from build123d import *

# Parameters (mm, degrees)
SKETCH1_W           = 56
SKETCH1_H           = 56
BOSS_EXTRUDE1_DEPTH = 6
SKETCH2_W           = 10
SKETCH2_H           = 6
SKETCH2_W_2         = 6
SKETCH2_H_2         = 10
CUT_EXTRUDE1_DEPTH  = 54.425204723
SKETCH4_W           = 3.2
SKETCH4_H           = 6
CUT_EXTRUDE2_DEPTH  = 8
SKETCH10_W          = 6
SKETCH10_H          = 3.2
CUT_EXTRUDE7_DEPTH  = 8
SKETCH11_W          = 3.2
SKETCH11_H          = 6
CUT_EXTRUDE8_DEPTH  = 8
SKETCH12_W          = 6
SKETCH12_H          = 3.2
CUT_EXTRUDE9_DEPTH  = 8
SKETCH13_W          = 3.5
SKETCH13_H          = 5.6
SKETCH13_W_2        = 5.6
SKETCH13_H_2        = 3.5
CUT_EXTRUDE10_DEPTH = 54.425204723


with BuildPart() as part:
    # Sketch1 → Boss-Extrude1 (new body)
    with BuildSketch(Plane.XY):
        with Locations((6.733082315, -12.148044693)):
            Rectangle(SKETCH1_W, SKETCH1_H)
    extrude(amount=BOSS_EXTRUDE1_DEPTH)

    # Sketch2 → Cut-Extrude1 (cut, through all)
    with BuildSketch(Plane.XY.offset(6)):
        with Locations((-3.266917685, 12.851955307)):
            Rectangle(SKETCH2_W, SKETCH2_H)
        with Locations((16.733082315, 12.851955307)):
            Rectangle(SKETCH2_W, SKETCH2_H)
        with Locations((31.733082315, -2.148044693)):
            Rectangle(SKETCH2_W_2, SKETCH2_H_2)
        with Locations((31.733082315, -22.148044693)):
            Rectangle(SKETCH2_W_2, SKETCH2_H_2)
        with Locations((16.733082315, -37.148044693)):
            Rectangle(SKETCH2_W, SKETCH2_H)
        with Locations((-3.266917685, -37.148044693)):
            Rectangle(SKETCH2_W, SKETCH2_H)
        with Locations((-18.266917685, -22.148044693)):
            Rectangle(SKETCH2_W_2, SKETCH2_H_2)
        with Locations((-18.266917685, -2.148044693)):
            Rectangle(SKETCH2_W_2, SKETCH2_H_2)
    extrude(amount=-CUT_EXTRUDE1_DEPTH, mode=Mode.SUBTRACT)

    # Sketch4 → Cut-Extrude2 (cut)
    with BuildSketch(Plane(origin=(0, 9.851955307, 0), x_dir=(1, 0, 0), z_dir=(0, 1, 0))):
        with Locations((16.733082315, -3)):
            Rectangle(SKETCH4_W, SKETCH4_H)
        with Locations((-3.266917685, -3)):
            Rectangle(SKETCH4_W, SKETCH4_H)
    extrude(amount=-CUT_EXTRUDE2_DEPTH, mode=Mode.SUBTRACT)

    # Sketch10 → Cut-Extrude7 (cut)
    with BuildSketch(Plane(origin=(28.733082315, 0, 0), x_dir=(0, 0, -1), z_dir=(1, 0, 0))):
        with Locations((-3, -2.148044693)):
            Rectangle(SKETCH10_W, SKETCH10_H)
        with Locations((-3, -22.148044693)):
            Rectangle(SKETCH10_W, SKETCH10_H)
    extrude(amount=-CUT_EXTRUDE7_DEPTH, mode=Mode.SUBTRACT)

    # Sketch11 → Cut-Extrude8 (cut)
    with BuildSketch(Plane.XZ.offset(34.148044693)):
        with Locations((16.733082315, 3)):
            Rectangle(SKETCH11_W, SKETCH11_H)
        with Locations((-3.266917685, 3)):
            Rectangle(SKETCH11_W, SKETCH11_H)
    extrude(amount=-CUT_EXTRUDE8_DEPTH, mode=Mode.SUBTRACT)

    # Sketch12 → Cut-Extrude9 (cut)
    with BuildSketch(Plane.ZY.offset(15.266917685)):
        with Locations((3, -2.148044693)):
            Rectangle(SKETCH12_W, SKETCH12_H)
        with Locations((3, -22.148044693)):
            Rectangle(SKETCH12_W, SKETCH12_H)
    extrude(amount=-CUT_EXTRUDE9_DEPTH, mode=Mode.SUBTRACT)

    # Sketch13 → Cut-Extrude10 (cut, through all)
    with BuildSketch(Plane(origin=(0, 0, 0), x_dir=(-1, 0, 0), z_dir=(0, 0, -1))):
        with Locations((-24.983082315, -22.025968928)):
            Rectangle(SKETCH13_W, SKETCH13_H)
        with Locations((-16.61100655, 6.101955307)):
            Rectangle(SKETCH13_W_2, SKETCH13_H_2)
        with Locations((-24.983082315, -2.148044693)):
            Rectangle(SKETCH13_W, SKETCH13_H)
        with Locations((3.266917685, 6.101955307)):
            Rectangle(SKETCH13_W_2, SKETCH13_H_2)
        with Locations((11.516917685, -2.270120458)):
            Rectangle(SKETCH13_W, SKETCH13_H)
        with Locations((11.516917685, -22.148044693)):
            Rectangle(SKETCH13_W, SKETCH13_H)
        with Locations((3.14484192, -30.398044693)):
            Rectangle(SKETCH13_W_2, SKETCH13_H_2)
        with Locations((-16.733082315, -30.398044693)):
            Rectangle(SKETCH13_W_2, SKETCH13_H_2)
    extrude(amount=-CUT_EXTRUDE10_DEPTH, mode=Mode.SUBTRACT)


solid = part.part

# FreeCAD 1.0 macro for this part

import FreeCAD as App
import Part
import Sketcher

V = App.Vector


def add_polygon(sketch, points):
    """Adds a closed chain of lines whose ends are joined by coincident constraints."""
    first, n = sketch.GeometryCount, len(points)
    for a, b in zip(points, points[1:] + points[:1]):
        sketch.addGeometry(Part.LineSegment(App.Vector(*a, 0), App.Vector(*b, 0)), False)
    for i in range(n):
        sketch.addConstraint(Sketcher.Constraint("Coincident", first + i, 2, first + (i + 1) % n, 1))

doc = App.newDocument("Part")
body = doc.addObject("PartDesign::Body", "Body")

sketch1 = doc.addObject("Sketcher::SketchObject", "Sketch")
body.addObject(sketch1)
sketch1.AttachmentSupport = (doc.XY_Plane, [""])
sketch1.MapMode = "FlatFace"
add_polygon(sketch1, [(-21, 16), (-21, -40), (35, -40), (35, 16)])
sketch1.addConstraint(Sketcher.Constraint("Vertical", 0))
sketch1.addConstraint(Sketcher.Constraint("Horizontal", 1))
sketch1.addConstraint(Sketcher.Constraint("Vertical", 2))
sketch1.addConstraint(Sketcher.Constraint("Horizontal", 3))
sketch1.addConstraint(Sketcher.Constraint("Equal", 3, 0))
sketch1.addConstraint(Sketcher.Constraint("DistanceX", 1, 1, 1, 2, 56.0))
sketch1.addConstraint(Sketcher.Constraint("DistanceX", 0, 2, -1, 1, 21.266918))
sketch1.addConstraint(Sketcher.Constraint("DistanceY", 0, 2, -1, 1, 40.148045))
pad1 = doc.addObject("PartDesign::Pad", "Pad")
body.addObject(pad1)
pad1.Profile = sketch1
pad1.Length = 6

sketch2 = doc.addObject("Sketcher::SketchObject", "Sketch001")
body.addObject(sketch2)
sketch2.AttachmentSupport = (doc.XY_Plane, [""])
sketch2.MapMode = "FlatFace"
sketch2.AttachmentOffset = App.Placement(V(0, 0, 6), App.Rotation())
add_polygon(sketch2, [(-8, 16), (-8, 10), (2, 10), (2, 16)])
add_polygon(sketch2, [(12, 16), (12, 10), (22, 10), (22, 16)])
add_polygon(sketch2, [(29, 3), (29, -7), (35, -7), (35, 3)])
add_polygon(sketch2, [(29, -17), (29, -27), (35, -27), (35, -17)])
add_polygon(sketch2, [(12, -34), (12, -40), (22, -40), (22, -34)])
add_polygon(sketch2, [(-8, -34), (-8, -40), (2, -40), (2, -34)])
add_polygon(sketch2, [(-21, -17), (-21, -27), (-15, -27), (-15, -17)])
add_polygon(sketch2, [(-21, 3), (-21, -7), (-15, -7), (-15, 3)])
sketch2.addConstraint(Sketcher.Constraint("Vertical", 0))
sketch2.addConstraint(Sketcher.Constraint("Horizontal", 1))
sketch2.addConstraint(Sketcher.Constraint("Vertical", 2))
sketch2.addConstraint(Sketcher.Constraint("Horizontal", 3))
sketch2.addConstraint(Sketcher.Constraint("Vertical", 4))
sketch2.addConstraint(Sketcher.Constraint("Horizontal", 5))
sketch2.addConstraint(Sketcher.Constraint("Vertical", 6))
sketch2.addConstraint(Sketcher.Constraint("Horizontal", 7))
sketch2.addConstraint(Sketcher.Constraint("Vertical", 8))
sketch2.addConstraint(Sketcher.Constraint("Horizontal", 9))
sketch2.addConstraint(Sketcher.Constraint("Vertical", 10))
sketch2.addConstraint(Sketcher.Constraint("Horizontal", 11))
sketch2.addConstraint(Sketcher.Constraint("Vertical", 12))
sketch2.addConstraint(Sketcher.Constraint("Horizontal", 13))
sketch2.addConstraint(Sketcher.Constraint("Vertical", 14))
sketch2.addConstraint(Sketcher.Constraint("Horizontal", 15))
sketch2.addConstraint(Sketcher.Constraint("Vertical", 16))
sketch2.addConstraint(Sketcher.Constraint("Horizontal", 17))
sketch2.addConstraint(Sketcher.Constraint("Vertical", 18))
sketch2.addConstraint(Sketcher.Constraint("Horizontal", 19))
sketch2.addConstraint(Sketcher.Constraint("Vertical", 20))
sketch2.addConstraint(Sketcher.Constraint("Horizontal", 21))
sketch2.addConstraint(Sketcher.Constraint("Vertical", 22))
sketch2.addConstraint(Sketcher.Constraint("Horizontal", 23))
sketch2.addConstraint(Sketcher.Constraint("Vertical", 24))
sketch2.addConstraint(Sketcher.Constraint("Horizontal", 25))
sketch2.addConstraint(Sketcher.Constraint("Vertical", 26))
sketch2.addConstraint(Sketcher.Constraint("Horizontal", 27))
sketch2.addConstraint(Sketcher.Constraint("Vertical", 28))
sketch2.addConstraint(Sketcher.Constraint("Horizontal", 29))
sketch2.addConstraint(Sketcher.Constraint("Vertical", 30))
sketch2.addConstraint(Sketcher.Constraint("Horizontal", 31))
sketch2.addConstraint(Sketcher.Constraint("Horizontal", 1, 2, 4, 2))
sketch2.addConstraint(Sketcher.Constraint("Horizontal", 3, 2, 6, 2))
sketch2.addConstraint(Sketcher.Constraint("Horizontal", 17, 2, 20, 2))
sketch2.addConstraint(Sketcher.Constraint("Horizontal", 19, 2, 22, 2))
sketch2.addConstraint(Sketcher.Constraint("Horizontal", 13, 2, 24, 2))
sketch2.addConstraint(Sketcher.Constraint("Horizontal", 15, 2, 26, 2))
sketch2.addConstraint(Sketcher.Constraint("Horizontal", 9, 2, 28, 2))
sketch2.addConstraint(Sketcher.Constraint("Horizontal", 11, 2, 30, 2))
sketch2.addConstraint(Sketcher.Constraint("Vertical", 11, 2, 12, 2))
sketch2.addConstraint(Sketcher.Constraint("Vertical", 10, 2, 13, 2))
sketch2.addConstraint(Sketcher.Constraint("Vertical", 7, 2, 16, 2))
sketch2.addConstraint(Sketcher.Constraint("Vertical", 6, 2, 17, 2))
sketch2.addConstraint(Sketcher.Constraint("Vertical", 3, 2, 20, 2))
sketch2.addConstraint(Sketcher.Constraint("Vertical", 2, 2, 21, 2))
sketch2.addConstraint(Sketcher.Constraint("Vertical", 27, 2, 28, 2))
sketch2.addConstraint(Sketcher.Constraint("Vertical", 26, 2, 29, 2))
sketch2.addConstraint(Sketcher.Constraint("Equal", 3, 5))
sketch2.addConstraint(Sketcher.Constraint("Equal", 15, 25))
sketch2.addConstraint(Sketcher.Constraint("Equal", 31, 0))
sketch2.addConstraint(Sketcher.Constraint("Equal", 23, 8))
sketch2.addConstraint(Sketcher.Constraint("Equal", 10, 12))
sketch2.addConstraint(Sketcher.Constraint("Equal", 6, 16))
sketch2.addConstraint(Sketcher.Constraint("DistanceX", 1, 1, 1, 2, 10.0))
sketch2.addConstraint(Sketcher.Constraint("DistanceX", 9, 1, 9, 2, 6.0))
sketch2.addConstraint(Sketcher.Constraint("DistanceX", 1, 2, 4, 2, 10.0))
sketch2.addConstraint(Sketcher.Constraint("DistanceX", 5, 2, 8, 2, 7.0))
sketch2.addConstraint(Sketcher.Constraint("DistanceY", 8, 2, 5, 2, 17.0))
sketch2.addConstraint(Sketcher.Constraint("DistanceY", 12, 2, 8, 2, 20.0))
sketch2.addConstraint(Sketcher.Constraint("DistanceY", 16, 2, 12, 2, 13.0))
sketch2.addConstraint(Sketcher.Constraint("DistanceX", 24, 2, 23, 2, 13.0))
sketch2.addConstraint(Sketcher.Constraint("DistanceX", 0, 2, -1, 1, 8.266918))
sketch2.addConstraint(Sketcher.Constraint("DistanceY", -1, 1, 0, 2, 9.851955))
pocket1 = doc.addObject("PartDesign::Pocket", "Pocket")
body.addObject(pocket1)
pocket1.Profile = sketch2
pocket1.Type = "ThroughAll"

sketch3 = doc.addObject("Sketcher::SketchObject", "Sketch002")
body.addObject(sketch3)
sketch3.AttachmentSupport = (doc.XZ_Plane, [""])
sketch3.MapMode = "FlatFace"
sketch3.AttachmentOffset = App.Placement(V(0, 0, -9.851955), App.Rotation())
add_polygon(sketch3, [(15.1, 0), (15.1, 6), (18.3, 6), (18.3, 0)])
add_polygon(sketch3, [(-4.9, 0), (-4.9, 6), (-1.7, 6), (-1.7, 0)])
sketch3.addConstraint(Sketcher.Constraint("Vertical", 0))
sketch3.addConstraint(Sketcher.Constraint("Horizontal", 1))
sketch3.addConstraint(Sketcher.Constraint("Vertical", 2))
sketch3.addConstraint(Sketcher.Constraint("Horizontal", 3))
sketch3.addConstraint(Sketcher.Constraint("Vertical", 4))
sketch3.addConstraint(Sketcher.Constraint("Horizontal", 5))
sketch3.addConstraint(Sketcher.Constraint("Vertical", 6))
sketch3.addConstraint(Sketcher.Constraint("Horizontal", 7))
sketch3.addConstraint(Sketcher.Constraint("PointOnObject", 2, 2, -1))
sketch3.addConstraint(Sketcher.Constraint("PointOnObject", 6, 2, -1))
sketch3.addConstraint(Sketcher.Constraint("Horizontal", 1, 2, 4, 2))
sketch3.addConstraint(Sketcher.Constraint("Equal", 3, 5))
sketch3.addConstraint(Sketcher.Constraint("DistanceY", 0, 1, 0, 2, 6.0))
sketch3.addConstraint(Sketcher.Constraint("DistanceX", 1, 1, 1, 2, 3.2))
sketch3.addConstraint(Sketcher.Constraint("DistanceX", 4, 2, 0, 2, 20.0))
sketch3.addConstraint(Sketcher.Constraint("DistanceX", -1, 1, 0, 2, 15.133082))
pocket2 = doc.addObject("PartDesign::Pocket", "Pocket001")
body.addObject(pocket2)
pocket2.Profile = sketch3
pocket2.Length = 8
pocket2.Reversed = True

sketch4 = doc.addObject("Sketcher::SketchObject", "Sketch003")
body.addObject(sketch4)
sketch4.AttachmentSupport = (doc.YZ_Plane, [""])
sketch4.MapMode = "FlatFace"
sketch4.AttachmentOffset = App.Placement(V(0, 0, 28.733082), App.Rotation())
add_polygon(sketch4, [(-0.5, 6), (-3.7, 6), (-3.7, 0), (-0.5, 0)])
add_polygon(sketch4, [(-20.5, 6), (-23.7, 6), (-23.7, 0), (-20.5, 0)])
sketch4.addConstraint(Sketcher.Constraint("Horizontal", 0))
sketch4.addConstraint(Sketcher.Constraint("Vertical", 1))
sketch4.addConstraint(Sketcher.Constraint("Horizontal", 2))
sketch4.addConstraint(Sketcher.Constraint("Vertical", 3))
sketch4.addConstraint(Sketcher.Constraint("Horizontal", 4))
sketch4.addConstraint(Sketcher.Constraint("Vertical", 5))
sketch4.addConstraint(Sketcher.Constraint("Horizontal", 6))
sketch4.addConstraint(Sketcher.Constraint("Vertical", 7))
sketch4.addConstraint(Sketcher.Constraint("PointOnObject", 1, 2, -1))
sketch4.addConstraint(Sketcher.Constraint("PointOnObject", 5, 2, -1))
sketch4.addConstraint(Sketcher.Constraint("Horizontal", 3, 2, 4, 2))
sketch4.addConstraint(Sketcher.Constraint("Equal", 2, 4))
sketch4.addConstraint(Sketcher.Constraint("DistanceY", 1, 2, 1, 1, 6.0))
sketch4.addConstraint(Sketcher.Constraint("DistanceX", 0, 2, 0, 1, 3.2))
sketch4.addConstraint(Sketcher.Constraint("DistanceX", 4, 2, 0, 2, 20.0))
sketch4.addConstraint(Sketcher.Constraint("DistanceX", 0, 2, -1, 1, 3.748045))
pocket3 = doc.addObject("PartDesign::Pocket", "Pocket002")
body.addObject(pocket3)
pocket3.Profile = sketch4
pocket3.Length = 8

sketch5 = doc.addObject("Sketcher::SketchObject", "Sketch004")
body.addObject(sketch5)
sketch5.AttachmentSupport = (doc.XZ_Plane, [""])
sketch5.MapMode = "FlatFace"
sketch5.AttachmentOffset = App.Placement(V(0, 0, 34.148045), App.Rotation())
add_polygon(sketch5, [(15.1, 6), (15.1, 0), (18.3, 0), (18.3, 6)])
add_polygon(sketch5, [(-4.9, 6), (-4.9, 0), (-1.7, 0), (-1.7, 6)])
sketch5.addConstraint(Sketcher.Constraint("Vertical", 0))
sketch5.addConstraint(Sketcher.Constraint("Horizontal", 1))
sketch5.addConstraint(Sketcher.Constraint("Vertical", 2))
sketch5.addConstraint(Sketcher.Constraint("Horizontal", 3))
sketch5.addConstraint(Sketcher.Constraint("Vertical", 4))
sketch5.addConstraint(Sketcher.Constraint("Horizontal", 5))
sketch5.addConstraint(Sketcher.Constraint("Vertical", 6))
sketch5.addConstraint(Sketcher.Constraint("Horizontal", 7))
sketch5.addConstraint(Sketcher.Constraint("PointOnObject", 0, 2, -1))
sketch5.addConstraint(Sketcher.Constraint("PointOnObject", 4, 2, -1))
sketch5.addConstraint(Sketcher.Constraint("Horizontal", 3, 2, 6, 2))
sketch5.addConstraint(Sketcher.Constraint("Equal", 3, 5))
sketch5.addConstraint(Sketcher.Constraint("DistanceY", 0, 2, 0, 1, 6.0))
sketch5.addConstraint(Sketcher.Constraint("DistanceX", 1, 1, 1, 2, 3.2))
sketch5.addConstraint(Sketcher.Constraint("DistanceX", 4, 2, 0, 2, 20.0))
sketch5.addConstraint(Sketcher.Constraint("DistanceX", -1, 1, 0, 2, 15.133082))
pocket4 = doc.addObject("PartDesign::Pocket", "Pocket003")
body.addObject(pocket4)
pocket4.Profile = sketch5
pocket4.Length = 8

sketch6 = doc.addObject("Sketcher::SketchObject", "Sketch005")
body.addObject(sketch6)
sketch6.AttachmentSupport = (doc.YZ_Plane, [""])
sketch6.MapMode = "FlatFace"
sketch6.AttachmentOffset = App.Placement(V(0, 0, -15.266918), App.Rotation())
add_polygon(sketch6, [(-0.5, 0), (-3.7, 0), (-3.7, 6), (-0.5, 6)])
add_polygon(sketch6, [(-20.5, 0), (-23.7, 0), (-23.7, 6), (-20.5, 6)])
sketch6.addConstraint(Sketcher.Constraint("Horizontal", 0))
sketch6.addConstraint(Sketcher.Constraint("Vertical", 1))
sketch6.addConstraint(Sketcher.Constraint("Horizontal", 2))
sketch6.addConstraint(Sketcher.Constraint("Vertical", 3))
sketch6.addConstraint(Sketcher.Constraint("Horizontal", 4))
sketch6.addConstraint(Sketcher.Constraint("Vertical", 5))
sketch6.addConstraint(Sketcher.Constraint("Horizontal", 6))
sketch6.addConstraint(Sketcher.Constraint("Vertical", 7))
sketch6.addConstraint(Sketcher.Constraint("PointOnObject", 0, 2, -1))
sketch6.addConstraint(Sketcher.Constraint("PointOnObject", 4, 2, -1))
sketch6.addConstraint(Sketcher.Constraint("Horizontal", 2, 2, 5, 2))
sketch6.addConstraint(Sketcher.Constraint("Equal", 2, 4))
sketch6.addConstraint(Sketcher.Constraint("DistanceY", 1, 1, 1, 2, 6.0))
sketch6.addConstraint(Sketcher.Constraint("DistanceX", 0, 2, 0, 1, 3.2))
sketch6.addConstraint(Sketcher.Constraint("DistanceX", 4, 2, 0, 2, 20.0))
sketch6.addConstraint(Sketcher.Constraint("DistanceX", 0, 2, -1, 1, 3.748045))
pocket5 = doc.addObject("PartDesign::Pocket", "Pocket004")
body.addObject(pocket5)
pocket5.Profile = sketch6
pocket5.Length = 8
pocket5.Reversed = True

sketch7 = doc.addObject("Sketcher::SketchObject", "Sketch006")
body.addObject(sketch7)
sketch7.AttachmentSupport = (doc.XY_Plane, [""])
sketch7.MapMode = "FlatFace"
add_polygon(sketch7, [(26.7, -19.2), (26.7, -24.8), (23.2, -24.8), (23.2, -19.2)])
add_polygon(sketch7, [(19.4, 7.9), (19.4, 4.4), (13.8, 4.4), (13.8, 7.9)])
add_polygon(sketch7, [(26.7, 0.7), (26.7, -4.9), (23.2, -4.9), (23.2, 0.7)])
add_polygon(sketch7, [(-0.5, 7.9), (-0.5, 4.4), (-6.1, 4.4), (-6.1, 7.9)])
add_polygon(sketch7, [(-9.8, 0.5), (-9.8, -5.1), (-13.3, -5.1), (-13.3, 0.5)])
add_polygon(sketch7, [(-9.8, -19.3), (-9.8, -24.9), (-13.3, -24.9), (-13.3, -19.3)])
add_polygon(sketch7, [(-0.3, -28.6), (-0.3, -32.1), (-5.9, -32.1), (-5.9, -28.6)])
add_polygon(sketch7, [(19.5, -28.6), (19.5, -32.1), (13.9, -32.1), (13.9, -28.6)])
sketch7.addConstraint(Sketcher.Constraint("Vertical", 0))
sketch7.addConstraint(Sketcher.Constraint("Horizontal", 1))
sketch7.addConstraint(Sketcher.Constraint("Vertical", 2))
sketch7.addConstraint(Sketcher.Constraint("Horizontal", 3))
sketch7.addConstraint(Sketcher.Constraint("Vertical", 4))
sketch7.addConstraint(Sketcher.Constraint("Horizontal", 5))
sketch7.addConstraint(Sketcher.Constraint("Vertical", 6))
sketch7.addConstraint(Sketcher.Constraint("Horizontal", 7))
sketch7.addConstraint(Sketcher.Constraint("Vertical", 8))
sketch7.addConstraint(Sketcher.Constraint("Horizontal", 9))
sketch7.addConstraint(Sketcher.Constraint("Vertical", 10))
sketch7.addConstraint(Sketcher.Constraint("Horizontal", 11))
sketch7.addConstraint(Sketcher.Constraint("Vertical", 12))
sketch7.addConstraint(Sketcher.Constraint("Horizontal", 13))
sketch7.addConstraint(Sketcher.Constraint("Vertical", 14))
sketch7.addConstraint(Sketcher.Constraint("Horizontal", 15))
sketch7.addConstraint(Sketcher.Constraint("Vertical", 16))
sketch7.addConstraint(Sketcher.Constraint("Horizontal", 17))
sketch7.addConstraint(Sketcher.Constraint("Vertical", 18))
sketch7.addConstraint(Sketcher.Constraint("Horizontal", 19))
sketch7.addConstraint(Sketcher.Constraint("Vertical", 20))
sketch7.addConstraint(Sketcher.Constraint("Horizontal", 21))
sketch7.addConstraint(Sketcher.Constraint("Vertical", 22))
sketch7.addConstraint(Sketcher.Constraint("Horizontal", 23))
sketch7.addConstraint(Sketcher.Constraint("Vertical", 24))
sketch7.addConstraint(Sketcher.Constraint("Horizontal", 25))
sketch7.addConstraint(Sketcher.Constraint("Vertical", 26))
sketch7.addConstraint(Sketcher.Constraint("Horizontal", 27))
sketch7.addConstraint(Sketcher.Constraint("Vertical", 28))
sketch7.addConstraint(Sketcher.Constraint("Horizontal", 29))
sketch7.addConstraint(Sketcher.Constraint("Vertical", 30))
sketch7.addConstraint(Sketcher.Constraint("Horizontal", 31))
sketch7.addConstraint(Sketcher.Constraint("Horizontal", 5, 2, 12, 2))
sketch7.addConstraint(Sketcher.Constraint("Horizontal", 7, 2, 14, 2))
sketch7.addConstraint(Sketcher.Constraint("Horizontal", 25, 2, 28, 2))
sketch7.addConstraint(Sketcher.Constraint("Horizontal", 27, 2, 30, 2))
sketch7.addConstraint(Sketcher.Constraint("Vertical", 3, 2, 8, 2))
sketch7.addConstraint(Sketcher.Constraint("Vertical", 2, 2, 9, 2))
sketch7.addConstraint(Sketcher.Constraint("Vertical", 19, 2, 20, 2))
sketch7.addConstraint(Sketcher.Constraint("Vertical", 18, 2, 21, 2))
sketch7.addConstraint(Sketcher.Constraint("Equal", 7, 13))
sketch7.addConstraint(Sketcher.Constraint("Equal", 11, 17))
sketch7.addConstraint(Sketcher.Constraint("Equal", 15, 25))
sketch7.addConstraint(Sketcher.Constraint("Equal", 27, 29))
sketch7.addConstraint(Sketcher.Constraint("Equal", 31, 0))
sketch7.addConstraint(Sketcher.Constraint("Equal", 23, 4))
sketch7.addConstraint(Sketcher.Constraint("Equal", 2, 8))
sketch7.addConstraint(Sketcher.Constraint("Equal", 10, 16))
sketch7.addConstraint(Sketcher.Constraint("Equal", 18, 20))
sketch7.addConstraint(Sketcher.Constraint("Equal", 14, 24))
sketch7.addConstraint(Sketcher.Constraint("DistanceX", 1, 2, 1, 1, 3.5))
sketch7.addConstraint(Sketcher.Constraint("DistanceX", 5, 2, 5, 1, 5.6))
sketch7.addConstraint(Sketcher.Constraint("DistanceY", 8, 2, 4, 2, 9.3))
sketch7.addConstraint(Sketcher.Constraint("DistanceX", 12, 2, 10, 2, 23.7))
sketch7.addConstraint(Sketcher.Constraint("DistanceX", 16, 2, 13, 2, 3.7))
sketch7.addConstraint(Sketcher.Constraint("DistanceY", 20, 2, 13, 2, 29.3))
sketch7.addConstraint(Sketcher.Constraint("DistanceY", 24, 2, 20, 2, 7.2))
sketch7.addConstraint(Sketcher.Constraint("DistanceX", 28, 2, 1, 2, 3.7))
sketch7.addConstraint(Sketcher.Constraint("DistanceY", 0, 2, -1, 1, 24.825969))
sketch7.addConstraint(Sketcher.Constraint("DistanceY", 16, 2, -1, 1, 5.07012))
sketch7.addConstraint(Sketcher.Constraint("DistanceX", 24, 2, -1, 1, 0.344842))
sketch7.addConstraint(Sketcher.Constraint("DistanceX", -1, 1, 0, 2, 26.733082))
sketch7.addConstraint(Sketcher.Constraint("DistanceX", -1, 1, 4, 2, 19.411007))
sketch7.addConstraint(Sketcher.Constraint("DistanceY", -1, 1, 4, 2, 4.351955))
pocket6 = doc.addObject("PartDesign::Pocket", "Pocket005")
body.addObject(pocket6)
pocket6.Profile = sketch7
pocket6.Type = "ThroughAll"
pocket6.Reversed = True

doc.recompute()
